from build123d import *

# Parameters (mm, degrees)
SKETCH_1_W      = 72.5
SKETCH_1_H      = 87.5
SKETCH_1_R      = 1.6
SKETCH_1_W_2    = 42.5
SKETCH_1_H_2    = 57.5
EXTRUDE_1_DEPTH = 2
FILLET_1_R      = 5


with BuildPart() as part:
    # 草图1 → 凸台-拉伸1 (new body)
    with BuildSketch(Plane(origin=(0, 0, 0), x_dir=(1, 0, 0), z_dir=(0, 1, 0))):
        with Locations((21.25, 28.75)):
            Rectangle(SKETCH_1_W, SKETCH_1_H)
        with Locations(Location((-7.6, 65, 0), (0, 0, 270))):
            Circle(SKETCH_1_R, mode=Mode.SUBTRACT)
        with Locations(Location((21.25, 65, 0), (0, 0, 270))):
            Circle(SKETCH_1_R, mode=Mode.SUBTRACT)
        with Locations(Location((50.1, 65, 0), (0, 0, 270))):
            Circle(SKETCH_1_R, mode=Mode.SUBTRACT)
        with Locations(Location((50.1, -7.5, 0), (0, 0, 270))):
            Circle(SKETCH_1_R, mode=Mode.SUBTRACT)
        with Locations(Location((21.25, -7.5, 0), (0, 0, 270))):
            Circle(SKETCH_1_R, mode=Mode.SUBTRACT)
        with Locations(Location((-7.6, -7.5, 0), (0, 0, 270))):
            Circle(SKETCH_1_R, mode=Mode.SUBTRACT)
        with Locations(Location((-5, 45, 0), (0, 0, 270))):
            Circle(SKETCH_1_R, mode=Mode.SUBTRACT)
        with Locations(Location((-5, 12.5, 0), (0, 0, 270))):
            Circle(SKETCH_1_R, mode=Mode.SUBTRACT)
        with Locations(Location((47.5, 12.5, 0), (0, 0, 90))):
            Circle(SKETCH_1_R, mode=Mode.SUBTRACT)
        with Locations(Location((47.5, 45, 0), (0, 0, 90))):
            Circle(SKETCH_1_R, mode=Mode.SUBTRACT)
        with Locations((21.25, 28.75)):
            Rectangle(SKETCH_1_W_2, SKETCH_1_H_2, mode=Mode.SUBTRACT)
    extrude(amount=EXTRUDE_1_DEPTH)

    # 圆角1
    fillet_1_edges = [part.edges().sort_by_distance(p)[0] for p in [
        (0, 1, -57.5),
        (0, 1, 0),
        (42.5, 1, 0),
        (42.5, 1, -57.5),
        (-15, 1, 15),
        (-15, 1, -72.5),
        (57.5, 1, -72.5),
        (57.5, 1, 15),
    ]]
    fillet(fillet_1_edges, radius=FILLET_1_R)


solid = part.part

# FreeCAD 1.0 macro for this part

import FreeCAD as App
import Part
import Sketcher
Q = App.Units.Quantity


def edges_at(feature, points):
    """Names of the edges that pass closest to the given points."""
    edges = feature.Shape.Edges
    near = lambda p: min(range(len(edges)), key=lambda i: edges[i].distToShape(Part.Vertex(*p))[0])
    return sorted({f"Edge{near(p) + 1}" for p in points})

doc = App.newDocument("Part")
body = doc.addObject("PartDesign::Body", "Body")

sketch1 = doc.addObject("Sketcher::SketchObject", "Sketch")
body.addObject(sketch1)
sketch1.AttachmentSupport = (doc.XZ_Plane, [""])
sketch1.MapMode = "FlatFace"
sketch1.addGeometry([
    Part.LineSegment(App.Vector(-15, -72.5, 0), App.Vector(-15, 15, 0)),
    Part.LineSegment(App.Vector(-15, 15, 0), App.Vector(57.5, 15, 0)),
    Part.LineSegment(App.Vector(57.5, 15, 0), App.Vector(57.5, -72.5, 0)),
    Part.LineSegment(App.Vector(57.5, -72.5, 0), App.Vector(-15, -72.5, 0)),
    Part.Circle(App.Vector(-7.6, 7.5, 0), App.Vector(0, 0, 1), 1.6),
    Part.Circle(App.Vector(21.2, 7.5, 0), App.Vector(0, 0, 1), 1.6),
    Part.Circle(App.Vector(-5, -12.5, 0), App.Vector(0, 0, 1), 1.6),
    Part.Circle(App.Vector(50.1, 7.5, 0), App.Vector(0, 0, 1), 1.6),
    Part.Circle(App.Vector(47.5, -12.5, 0), App.Vector(0, 0, 1), 1.6),
    Part.Circle(App.Vector(-5, -45, 0), App.Vector(0, 0, 1), 1.6),
    Part.LineSegment(App.Vector(42.5, 0, 0), App.Vector(0, 0, 0)),
    Part.LineSegment(App.Vector(0, 0, 0), App.Vector(0, -57.5, 0)),
    Part.LineSegment(App.Vector(0, -57.5, 0), App.Vector(42.5, -57.5, 0)),
    Part.LineSegment(App.Vector(42.5, -57.5, 0), App.Vector(42.5, 0, 0)),
    Part.Circle(App.Vector(-7.6, -65, 0), App.Vector(0, 0, 1), 1.6),
    Part.Circle(App.Vector(21.2, -65, 0), App.Vector(0, 0, 1), 1.6),
    Part.Circle(App.Vector(47.5, -45, 0), App.Vector(0, 0, 1), 1.6),
    Part.Circle(App.Vector(50.1, -65, 0), App.Vector(0, 0, 1), 1.6),
], False)
sketch1.addConstraint([
    Sketcher.Constraint("Coincident", 0, 2, 1, 1),
    Sketcher.Constraint("Coincident", 1, 2, 2, 1),
    Sketcher.Constraint("Coincident", 2, 2, 3, 1),
    Sketcher.Constraint("Coincident", 3, 2, 0, 1),
    Sketcher.Constraint("Coincident", 10, 2, 11, 1),
    Sketcher.Constraint("Coincident", 11, 2, 12, 1),
    Sketcher.Constraint("Coincident", 12, 2, 13, 1),
    Sketcher.Constraint("Coincident", 13, 2, 10, 1),
    Sketcher.Constraint("Vertical", 0),
    Sketcher.Constraint("Horizontal", 1),
    Sketcher.Constraint("Vertical", 2),
    Sketcher.Constraint("Horizontal", 3),
    Sketcher.Constraint("Horizontal", 10),
    Sketcher.Constraint("Vertical", 11),
    Sketcher.Constraint("Horizontal", 12),
    Sketcher.Constraint("Vertical", 13),
    Sketcher.Constraint("Coincident", 10, 2, -1, 1),
    Sketcher.Constraint("Equal", 4, 5),
    Sketcher.Constraint("Equal", 5, 6),
    Sketcher.Constraint("Equal", 6, 7),
    Sketcher.Constraint("Equal", 7, 8),
    Sketcher.Constraint("Equal", 8, 9),
    Sketcher.Constraint("Equal", 9, 14),
    Sketcher.Constraint("Equal", 14, 15),
    Sketcher.Constraint("Equal", 15, 16),
    Sketcher.Constraint("Equal", 16, 17),
    Sketcher.Constraint("Horizontal", 4, 3, 5, 3),
    Sketcher.Constraint("Horizontal", 5, 3, 7, 3),
    Sketcher.Constraint("Horizontal", 6, 3, 8, 3),
    Sketcher.Constraint("Horizontal", 14, 3, 15, 3),
    Sketcher.Constraint("Horizontal", 9, 3, 16, 3),
    Sketcher.Constraint("Horizontal", 15, 3, 17, 3),
    Sketcher.Constraint("Vertical", 6, 3, 9, 3),
    Sketcher.Constraint("Vertical", 4, 3, 14, 3),
    Sketcher.Constraint("Vertical", 5, 3, 15, 3),
    Sketcher.Constraint("Vertical", 8, 3, 16, 3),
    Sketcher.Constraint("Vertical", 7, 3, 17, 3),
    Sketcher.Constraint("Diameter", 4, Q("3.2 mm")),
    Sketcher.Constraint("DistanceX", 1, 1, 1, 2, Q("72.5 mm")),
    Sketcher.Constraint("DistanceX", 10, 2, 10, 1, Q("42.5 mm")),
    Sketcher.Constraint("DistanceY", 0, 1, 0, 2, Q("87.5 mm")),
    Sketcher.Constraint("DistanceY", 11, 2, 11, 1, Q("57.5 mm")),
    Sketcher.Constraint("DistanceX", 6, 3, -1, 1, Q("5 mm")),
    Sketcher.Constraint("DistanceY", 9, 3, -1, 1, Q("45 mm")),
    Sketcher.Constraint("DistanceY", 14, 3, -1, 1, Q("65 mm")),
    Sketcher.Constraint("DistanceX", 0, 2, -1, 1, Q("15 mm")),
    Sketcher.Constraint("DistanceY", -1, 1, 0, 2, Q("15 mm")),
    Sketcher.Constraint("DistanceY", 6, 3, 4, 3, Q("20 mm")),
    Sketcher.Constraint("DistanceX", 8, 3, 1, 2, Q("10 mm")),
    Sketcher.Constraint("DistanceY", 2, 2, 8, 3, Q("60 mm")),
    Sketcher.Constraint("DistanceX", 4, 3, -1, 1, Q("7.6 mm")),
    Sketcher.Constraint("DistanceX", -1, 1, 7, 3, Q("50.1 mm")),
    Sketcher.Constraint("DistanceX", -1, 1, 5, 3, Q("21.25 mm")),
])
pad1 = doc.addObject("PartDesign::Pad", "Pad")
body.addObject(pad1)
pad1.Profile = sketch1
pad1.Length = 2
pad1.Reversed = True
doc.recompute()

fillet = doc.addObject("PartDesign::Fillet", "Fillet")
body.addObject(fillet)
fillet.Base = (pad1, edges_at(pad1, [
    (0, 1, -57.5),
    (0, 1, 0),
    (42.5, 1, 0),
    (42.5, 1, -57.5),
    (-15, 1, 15),
    (-15, 1, -72.5),
    (57.5, 1, -72.5),
    (57.5, 1, 15),
]))
fillet.Radius = 5

doc.recompute()
